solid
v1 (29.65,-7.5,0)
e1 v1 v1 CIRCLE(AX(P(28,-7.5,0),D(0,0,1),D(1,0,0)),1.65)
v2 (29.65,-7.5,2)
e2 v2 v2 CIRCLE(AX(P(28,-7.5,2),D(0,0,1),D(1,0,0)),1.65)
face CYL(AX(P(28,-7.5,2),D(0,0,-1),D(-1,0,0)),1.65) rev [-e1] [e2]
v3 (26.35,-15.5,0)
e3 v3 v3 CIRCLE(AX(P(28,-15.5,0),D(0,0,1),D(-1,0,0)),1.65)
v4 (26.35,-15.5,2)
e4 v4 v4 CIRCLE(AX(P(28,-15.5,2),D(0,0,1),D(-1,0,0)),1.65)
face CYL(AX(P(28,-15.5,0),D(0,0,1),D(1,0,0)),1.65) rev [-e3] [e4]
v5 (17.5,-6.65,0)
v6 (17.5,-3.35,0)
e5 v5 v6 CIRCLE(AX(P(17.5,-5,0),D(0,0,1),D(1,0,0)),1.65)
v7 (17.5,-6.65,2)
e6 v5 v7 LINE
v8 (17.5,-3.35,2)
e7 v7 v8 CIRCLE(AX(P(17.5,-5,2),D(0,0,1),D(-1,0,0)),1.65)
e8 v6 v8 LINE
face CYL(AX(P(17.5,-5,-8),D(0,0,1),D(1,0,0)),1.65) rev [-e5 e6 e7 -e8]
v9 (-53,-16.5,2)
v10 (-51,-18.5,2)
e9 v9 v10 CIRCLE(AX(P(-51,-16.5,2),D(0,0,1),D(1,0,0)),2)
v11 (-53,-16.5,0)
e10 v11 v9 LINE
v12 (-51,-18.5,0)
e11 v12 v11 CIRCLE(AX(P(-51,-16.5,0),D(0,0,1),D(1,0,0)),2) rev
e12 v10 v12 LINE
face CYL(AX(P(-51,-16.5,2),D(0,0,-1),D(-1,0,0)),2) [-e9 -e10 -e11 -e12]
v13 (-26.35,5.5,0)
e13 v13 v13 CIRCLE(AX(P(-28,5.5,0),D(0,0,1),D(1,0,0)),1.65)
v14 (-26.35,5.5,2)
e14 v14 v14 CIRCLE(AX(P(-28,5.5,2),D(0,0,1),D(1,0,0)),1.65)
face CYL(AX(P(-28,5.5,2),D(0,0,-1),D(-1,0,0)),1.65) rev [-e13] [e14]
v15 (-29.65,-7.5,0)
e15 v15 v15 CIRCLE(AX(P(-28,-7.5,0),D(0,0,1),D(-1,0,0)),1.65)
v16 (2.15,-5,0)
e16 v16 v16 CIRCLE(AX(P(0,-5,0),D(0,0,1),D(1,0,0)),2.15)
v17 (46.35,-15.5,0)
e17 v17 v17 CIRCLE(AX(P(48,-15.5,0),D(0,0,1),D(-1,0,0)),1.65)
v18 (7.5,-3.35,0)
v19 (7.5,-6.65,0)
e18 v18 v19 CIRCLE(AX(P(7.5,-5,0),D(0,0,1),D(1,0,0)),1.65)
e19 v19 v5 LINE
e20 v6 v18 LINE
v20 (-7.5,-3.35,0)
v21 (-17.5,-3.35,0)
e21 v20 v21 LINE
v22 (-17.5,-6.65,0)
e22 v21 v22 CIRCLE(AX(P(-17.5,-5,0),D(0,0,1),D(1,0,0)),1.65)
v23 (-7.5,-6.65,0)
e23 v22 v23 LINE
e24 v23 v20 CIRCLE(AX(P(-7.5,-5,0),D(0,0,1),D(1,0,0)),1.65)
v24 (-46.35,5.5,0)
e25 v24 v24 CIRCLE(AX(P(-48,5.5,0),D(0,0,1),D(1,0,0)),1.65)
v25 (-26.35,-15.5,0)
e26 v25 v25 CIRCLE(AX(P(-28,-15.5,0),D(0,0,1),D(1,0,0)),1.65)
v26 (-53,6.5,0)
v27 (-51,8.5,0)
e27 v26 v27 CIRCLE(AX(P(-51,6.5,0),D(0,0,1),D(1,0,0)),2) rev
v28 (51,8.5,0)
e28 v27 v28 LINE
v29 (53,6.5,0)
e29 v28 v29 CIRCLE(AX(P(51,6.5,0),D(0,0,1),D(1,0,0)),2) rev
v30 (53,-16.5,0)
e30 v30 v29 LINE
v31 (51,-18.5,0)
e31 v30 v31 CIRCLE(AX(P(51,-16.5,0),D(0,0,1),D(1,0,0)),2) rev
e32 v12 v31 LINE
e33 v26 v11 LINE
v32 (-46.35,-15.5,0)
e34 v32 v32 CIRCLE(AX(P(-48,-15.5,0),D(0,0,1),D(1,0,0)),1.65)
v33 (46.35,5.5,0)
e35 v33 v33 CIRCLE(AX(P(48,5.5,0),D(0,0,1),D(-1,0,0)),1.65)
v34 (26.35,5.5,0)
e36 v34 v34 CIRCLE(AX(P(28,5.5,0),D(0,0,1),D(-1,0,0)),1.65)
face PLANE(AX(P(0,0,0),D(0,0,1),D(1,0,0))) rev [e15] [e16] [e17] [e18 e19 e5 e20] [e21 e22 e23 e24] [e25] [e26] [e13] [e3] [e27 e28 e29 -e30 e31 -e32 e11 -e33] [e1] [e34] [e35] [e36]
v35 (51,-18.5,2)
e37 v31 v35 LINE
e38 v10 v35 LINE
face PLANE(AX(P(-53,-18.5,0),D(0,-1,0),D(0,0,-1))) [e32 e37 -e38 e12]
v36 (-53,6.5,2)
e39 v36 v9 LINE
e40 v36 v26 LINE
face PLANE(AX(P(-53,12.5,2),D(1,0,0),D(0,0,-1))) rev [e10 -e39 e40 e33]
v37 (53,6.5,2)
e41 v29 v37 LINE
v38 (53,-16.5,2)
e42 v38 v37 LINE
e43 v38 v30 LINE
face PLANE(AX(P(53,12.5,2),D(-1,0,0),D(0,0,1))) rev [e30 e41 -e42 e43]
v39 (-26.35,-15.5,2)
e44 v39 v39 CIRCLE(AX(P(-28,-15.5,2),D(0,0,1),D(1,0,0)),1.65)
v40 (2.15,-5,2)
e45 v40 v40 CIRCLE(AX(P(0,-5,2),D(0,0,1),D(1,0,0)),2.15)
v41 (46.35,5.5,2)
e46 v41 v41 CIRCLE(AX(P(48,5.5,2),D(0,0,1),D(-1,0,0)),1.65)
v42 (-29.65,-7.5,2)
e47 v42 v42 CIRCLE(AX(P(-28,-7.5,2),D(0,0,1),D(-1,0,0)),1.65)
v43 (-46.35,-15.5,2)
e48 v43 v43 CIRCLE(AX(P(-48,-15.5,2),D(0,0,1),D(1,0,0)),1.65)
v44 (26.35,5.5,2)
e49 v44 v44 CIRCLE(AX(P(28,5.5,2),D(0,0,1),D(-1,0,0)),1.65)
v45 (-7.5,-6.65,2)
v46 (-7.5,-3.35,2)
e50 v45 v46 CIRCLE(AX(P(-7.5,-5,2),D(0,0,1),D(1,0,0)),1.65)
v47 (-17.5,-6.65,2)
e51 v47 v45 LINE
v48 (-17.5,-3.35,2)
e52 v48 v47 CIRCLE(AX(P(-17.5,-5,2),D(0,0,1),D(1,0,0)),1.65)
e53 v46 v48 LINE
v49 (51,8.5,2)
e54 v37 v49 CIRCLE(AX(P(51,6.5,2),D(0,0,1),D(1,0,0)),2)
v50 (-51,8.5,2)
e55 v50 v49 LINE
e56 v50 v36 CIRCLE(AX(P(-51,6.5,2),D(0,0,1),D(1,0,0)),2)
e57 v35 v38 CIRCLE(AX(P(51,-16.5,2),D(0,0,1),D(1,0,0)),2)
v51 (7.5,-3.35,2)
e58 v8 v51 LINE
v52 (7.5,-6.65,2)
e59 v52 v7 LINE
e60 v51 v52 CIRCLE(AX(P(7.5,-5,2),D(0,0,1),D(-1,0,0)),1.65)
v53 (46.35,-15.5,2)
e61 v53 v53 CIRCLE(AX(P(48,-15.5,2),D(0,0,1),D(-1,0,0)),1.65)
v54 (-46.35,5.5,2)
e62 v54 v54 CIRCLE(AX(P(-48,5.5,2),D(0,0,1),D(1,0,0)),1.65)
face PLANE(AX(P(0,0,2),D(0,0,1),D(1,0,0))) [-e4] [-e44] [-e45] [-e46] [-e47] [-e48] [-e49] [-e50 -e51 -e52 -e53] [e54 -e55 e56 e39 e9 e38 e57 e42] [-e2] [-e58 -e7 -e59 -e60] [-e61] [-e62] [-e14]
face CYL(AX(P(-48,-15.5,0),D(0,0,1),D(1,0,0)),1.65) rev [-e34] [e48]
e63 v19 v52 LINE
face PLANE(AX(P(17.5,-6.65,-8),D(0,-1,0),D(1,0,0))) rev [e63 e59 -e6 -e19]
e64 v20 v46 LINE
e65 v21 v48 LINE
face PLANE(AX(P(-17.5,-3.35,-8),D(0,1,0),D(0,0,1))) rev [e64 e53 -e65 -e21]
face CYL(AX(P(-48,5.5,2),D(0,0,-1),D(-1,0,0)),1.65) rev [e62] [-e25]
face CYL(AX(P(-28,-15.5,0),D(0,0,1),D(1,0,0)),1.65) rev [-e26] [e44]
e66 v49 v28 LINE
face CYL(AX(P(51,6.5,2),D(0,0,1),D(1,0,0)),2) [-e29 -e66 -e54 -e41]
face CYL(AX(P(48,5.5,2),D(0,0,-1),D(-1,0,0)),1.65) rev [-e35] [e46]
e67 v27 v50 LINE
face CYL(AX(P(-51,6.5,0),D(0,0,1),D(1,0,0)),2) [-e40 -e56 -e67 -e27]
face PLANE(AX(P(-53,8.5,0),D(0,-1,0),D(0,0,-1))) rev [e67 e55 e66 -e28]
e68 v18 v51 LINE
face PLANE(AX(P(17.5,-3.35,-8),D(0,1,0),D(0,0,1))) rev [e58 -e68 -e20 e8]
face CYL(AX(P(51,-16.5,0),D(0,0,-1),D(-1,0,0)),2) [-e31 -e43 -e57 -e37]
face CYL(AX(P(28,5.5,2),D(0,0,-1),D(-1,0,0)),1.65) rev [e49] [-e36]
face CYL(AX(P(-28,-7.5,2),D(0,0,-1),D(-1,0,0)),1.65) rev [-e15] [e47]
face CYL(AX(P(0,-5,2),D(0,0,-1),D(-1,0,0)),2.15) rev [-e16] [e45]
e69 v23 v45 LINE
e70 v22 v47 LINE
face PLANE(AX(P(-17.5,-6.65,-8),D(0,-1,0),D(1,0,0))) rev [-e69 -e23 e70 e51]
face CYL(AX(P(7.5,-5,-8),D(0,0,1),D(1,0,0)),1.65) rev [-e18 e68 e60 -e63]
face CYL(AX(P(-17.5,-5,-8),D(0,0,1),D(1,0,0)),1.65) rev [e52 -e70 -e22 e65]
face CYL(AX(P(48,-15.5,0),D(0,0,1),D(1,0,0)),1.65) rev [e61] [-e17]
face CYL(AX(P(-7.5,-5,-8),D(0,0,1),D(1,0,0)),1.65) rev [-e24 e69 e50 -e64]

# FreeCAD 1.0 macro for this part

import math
import FreeCAD as App
import Part
import Sketcher


def edges_at(feature, points):
    """Names of the edges that pass closest to the given points."""
    edges = feature.Shape.Edges
    near = lambda p: min(range(len(edges)), key=lambda i: edges[i].distToShape(Part.Vertex(*p))[0])
    return sorted({f"Edge{near(p) + 1}" for p in points})


def add_polygon(sketch, points):
    """Adds a closed chain of lines whose ends are joined by coincident constraints."""
    first, n = sketch.GeometryCount, len(points)
    for a, b in zip(points, points[1:] + points[:1]):
        sketch.addGeometry(Part.LineSegment(App.Vector(*a, 0), App.Vector(*b, 0)), False)
    for i in range(n):
        sketch.addConstraint(Sketcher.Constraint("Coincident", first + i, 2, first + (i + 1) % n, 1))

doc = App.newDocument("Part")
body = doc.addObject("PartDesign::Body", "Body")

# Sketch on XY plane
sketch1 = doc.addObject("Sketcher::SketchObject", "Sketch")
body.addObject(sketch1)
sketch1.AttachmentSupport = (doc.XY_Plane, [""])
sketch1.MapMode = "FlatFace"
add_polygon(sketch1, [(-53, 12.5), (-53, -12.5), (53, -12.5), (53, 12.5)])  # lines 0-3
sketch1.addGeometry(Part.Circle(App.Vector(-28, -7.5, 0), App.Vector(0, 0, 1), 1.6), False)  # 4
sketch1.addGeometry(Part.Circle(App.Vector(28, -7.5, 0), App.Vector(0, 0, 1), 1.6), False)  # 5
sketch1.addGeometry(Part.Circle(App.Vector(0, -5, 0), App.Vector(0, 0, 1), 2.1), False)  # 6
sketch1.addGeometry(Part.Circle(App.Vector(-48, 5.5, 0), App.Vector(0, 0, 1), 1.6), False)  # 7
sketch1.addGeometry(Part.Circle(App.Vector(-28, 5.5, 0), App.Vector(0, 0, 1), 1.6), False)  # 8
sketch1.addGeometry(Part.Circle(App.Vector(28, 5.5, 0), App.Vector(0, 0, 1), 1.6), False)  # 9
sketch1.addGeometry(Part.Circle(App.Vector(48, 5.5, 0), App.Vector(0, 0, 1), 1.6), False)  # 10
sketch1.addConstraint(Sketcher.Constraint("Vertical", 0))
sketch1.addConstraint(Sketcher.Constraint("Horizontal", 1))
sketch1.addConstraint(Sketcher.Constraint("Vertical", 2))
sketch1.addConstraint(Sketcher.Constraint("Horizontal", 3))
sketch1.addConstraint(Sketcher.Constraint("Equal", 4, 5))
sketch1.addConstraint(Sketcher.Constraint("Equal", 5, 7))
sketch1.addConstraint(Sketcher.Constraint("Equal", 7, 8))
sketch1.addConstraint(Sketcher.Constraint("Equal", 8, 9))
sketch1.addConstraint(Sketcher.Constraint("Equal", 9, 10))
sketch1.addConstraint(Sketcher.Constraint("Symmetric", 0, 2, 2, 2, -1, 1))
sketch1.addConstraint(Sketcher.Constraint("Symmetric", 4, 3, 5, 3, -2))
sketch1.addConstraint(Sketcher.Constraint("Symmetric", 8, 3, 9, 3, -2))
sketch1.addConstraint(Sketcher.Constraint("Symmetric", 7, 3, 10, 3, -2))
sketch1.addConstraint(Sketcher.Constraint("PointOnObject", 6, 3, -2))
sketch1.addConstraint(Sketcher.Constraint("Horizontal", 7, 3, 8, 3))
sketch1.addConstraint(Sketcher.Constraint("Vertical", 4, 3, 8, 3))
sketch1.addConstraint(Sketcher.Constraint("Diameter", 4, 3.3))
sketch1.addConstraint(Sketcher.Constraint("Diameter", 6, 4.3))
sketch1.addConstraint(Sketcher.Constraint("DistanceX", 1, 1, 1, 2, 106.0))
sketch1.addConstraint(Sketcher.Constraint("DistanceY", 0, 2, 0, 1, 25.0))
sketch1.addConstraint(Sketcher.Constraint("DistanceX", 4, 3, -1, 1, 28.0))
sketch1.addConstraint(Sketcher.Constraint("DistanceY", 6, 3, -1, 1, 5.0))
sketch1.addConstraint(Sketcher.Constraint("DistanceX", 7, 3, -1, 1, 48.0))
sketch1.addConstraint(Sketcher.Constraint("DistanceY", 4, 3, 7, 3, 13.0))
sketch1.addConstraint(Sketcher.Constraint("DistanceY", 0, 2, 7, 3, 18.0))
pad1 = doc.addObject("PartDesign::Pad", "Pad")
body.addObject(pad1)
pad1.Profile = sketch1
pad1.Length = 2

# Sketch on XY plane
sketch2 = doc.addObject("Sketcher::SketchObject", "Sketch001")
body.addObject(sketch2)
sketch2.AttachmentSupport = (doc.XY_Plane, [""])
sketch2.MapMode = "FlatFace"
sketch2.AttachmentOffset = App.Placement(App.Vector(0, 0, 2), App.Rotation())
add_polygon(sketch2, [(-53, -12), (-53, -18), (53, -18), (53, -12)])  # lines 0-3
sketch2.addConstraint(Sketcher.Constraint("Vertical", 0))
sketch2.addConstraint(Sketcher.Constraint("Horizontal", 1))
sketch2.addConstraint(Sketcher.Constraint("Vertical", 2))
sketch2.addConstraint(Sketcher.Constraint("Horizontal", 3))
sketch2.addConstraint(Sketcher.Constraint("DistanceX", 1, 1, 1, 2, 106.0))
sketch2.addConstraint(Sketcher.Constraint("DistanceY", 0, 2, 0, 1, 6.0))
sketch2.addConstraint(Sketcher.Constraint("DistanceX", 0, 2, -1, 1, 53.0))
sketch2.addConstraint(Sketcher.Constraint("DistanceY", 0, 2, -1, 1, 18.5))
pad2 = doc.addObject("PartDesign::Pad", "Pad001")
body.addObject(pad2)
pad2.Profile = sketch2
pad2.Length = 2
pad2.Reversed = True

# Sketch on XY plane
sketch3 = doc.addObject("Sketcher::SketchObject", "Sketch002")
body.addObject(sketch3)
sketch3.AttachmentSupport = (doc.XY_Plane, [""])
sketch3.MapMode = "FlatFace"
sketch3.AttachmentOffset = App.Placement(App.Vector(0, 0, 2), App.Rotation())
sketch3.addGeometry(Part.Circle(App.Vector(-48, -15.5, 0), App.Vector(0, 0, 1), 1.6), False)
sketch3.addGeometry(Part.Circle(App.Vector(48, -15.5, 0), App.Vector(0, 0, 1), 1.6), False)
sketch3.addGeometry(Part.Circle(App.Vector(-28, -15.5, 0), App.Vector(0, 0, 1), 1.6), False)
sketch3.addGeometry(Part.Circle(App.Vector(28, -15.5, 0), App.Vector(0, 0, 1), 1.6), False)
sketch3.addConstraint(Sketcher.Constraint("Equal", 0, 1))
sketch3.addConstraint(Sketcher.Constraint("Equal", 1, 2))
sketch3.addConstraint(Sketcher.Constraint("Equal", 2, 3))
sketch3.addConstraint(Sketcher.Constraint("Symmetric", 0, 3, 1, 3, -2))
sketch3.addConstraint(Sketcher.Constraint("Symmetric", 2, 3, 3, 3, -2))
sketch3.addConstraint(Sketcher.Constraint("Horizontal", 1, 3, 2, 3))
sketch3.addConstraint(Sketcher.Constraint("Diameter", 0, 3.3))
sketch3.addConstraint(Sketcher.Constraint("DistanceX", 0, 3, -1, 1, 48.0))
sketch3.addConstraint(Sketcher.Constraint("DistanceX", 2, 3, -1, 1, 28.0))
sketch3.addConstraint(Sketcher.Constraint("DistanceY", 0, 3, -1, 1, 15.5))
pocket1 = doc.addObject("PartDesign::Pocket", "Pocket")
body.addObject(pocket1)
pocket1.Profile = sketch3
pocket1.Type = "ThroughAll"

# Sketch on XY plane
sketch4 = doc.addObject("Sketcher::SketchObject", "Sketch003")
body.addObject(sketch4)
sketch4.AttachmentSupport = (doc.XY_Plane, [""])
sketch4.MapMode = "FlatFace"
sketch4.AttachmentOffset = App.Placement(App.Vector(0, 0, 2), App.Rotation())
sketch4.addGeometry(Part.LineSegment(App.Vector(-7.5, -3.4, 0), App.Vector(-17.5, -3.4, 0)), False)
sketch4.addGeometry(Part.ArcOfCircle(Part.Circle(App.Vector(-17.5, -5, 0), App.Vector(0, 0, 1), 1.6), math.radians(90), math.radians(270)), False)
sketch4.addGeometry(Part.LineSegment(App.Vector(-17.5, -6.7, 0), App.Vector(-7.5, -6.7, 0)), False)
sketch4.addGeometry(Part.ArcOfCircle(Part.Circle(App.Vector(-7.5, -5, 0), App.Vector(0, 0, 1), 1.6), math.radians(-90), math.radians(90)), False)
sketch4.addGeometry(Part.LineSegment(App.Vector(17.5, -3.4, 0), App.Vector(7.5, -3.4, 0)), False)
sketch4.addGeometry(Part.ArcOfCircle(Part.Circle(App.Vector(7.5, -5, 0), App.Vector(0, 0, 1), 1.6), math.radians(90), math.radians(270)), False)
sketch4.addGeometry(Part.LineSegment(App.Vector(7.5, -6.7, 0), App.Vector(17.5, -6.7, 0)), False)
sketch4.addGeometry(Part.ArcOfCircle(Part.Circle(App.Vector(17.5, -5, 0), App.Vector(0, 0, 1), 1.6), math.radians(-90), math.radians(90)), False)
sketch4.addConstraint(Sketcher.Constraint("Tangent", 0, 2, 1, 1))
sketch4.addConstraint(Sketcher.Constraint("Tangent", 1, 2, 2, 1))
sketch4.addConstraint(Sketcher.Constraint("Tangent", 2, 2, 3, 1))
sketch4.addConstraint(Sketcher.Constraint("Tangent", 3, 2, 0, 1))
sketch4.addConstraint(Sketcher.Constraint("Tangent", 4, 2, 5, 1))
sketch4.addConstraint(Sketcher.Constraint("Tangent", 5, 2, 6, 1))
sketch4.addConstraint(Sketcher.Constraint("Tangent", 6, 2, 7, 1))
sketch4.addConstraint(Sketcher.Constraint("Tangent", 7, 2, 4, 1))
sketch4.addConstraint(Sketcher.Constraint("Horizontal", 0))
sketch4.addConstraint(Sketcher.Constraint("Horizontal", 2))
sketch4.addConstraint(Sketcher.Constraint("Horizontal", 4))
sketch4.addConstraint(Sketcher.Constraint("Horizontal", 6))
sketch4.addConstraint(Sketcher.Constraint("Equal", 3, 5))
sketch4.addConstraint(Sketcher.Constraint("Symmetric", 3, 3, 5, 3, -2))
sketch4.addConstraint(Sketcher.Constraint("Equal", 2, 4))
sketch4.addConstraint(Sketcher.Constraint("DistanceX", 0, 2, 0, 1, 10.0))
sketch4.addConstraint(Sketcher.Constraint("Radius", 1, 1.65))
sketch4.addConstraint(Sketcher.Constraint("DistanceY", 1, 3, -1, 1, 5.0))
sketch4.addConstraint(Sketcher.Constraint("DistanceX", 3, 3, 5, 3, 15.0))
pocket2 = doc.addObject("PartDesign::Pocket", "Pocket001")
body.addObject(pocket2)
pocket2.Profile = sketch4
pocket2.Length = 10

# Sketch on XY plane
sketch5 = doc.addObject("Sketcher::SketchObject", "Sketch004")
body.addObject(sketch5)
sketch5.AttachmentSupport = (doc.XY_Plane, [""])
sketch5.MapMode = "FlatFace"
sketch5.AttachmentOffset = App.Placement(App.Vector(0, 0, 2), App.Rotation())
add_polygon(sketch5, [(-53, 12.5), (-53, 8.5), (53, 8.5), (53, 12.5)])  # lines 0-3
sketch5.addConstraint(Sketcher.Constraint("Vertical", 0))
sketch5.addConstraint(Sketcher.Constraint("Horizontal", 1))
sketch5.addConstraint(Sketcher.Constraint("Vertical", 2))
sketch5.addConstraint(Sketcher.Constraint("Horizontal", 3))
sketch5.addConstraint(Sketcher.Constraint("DistanceX", 1, 1, 1, 2, 106.0))
sketch5.addConstraint(Sketcher.Constraint("DistanceY", 0, 2, 0, 1, 4.0))
sketch5.addConstraint(Sketcher.Constraint("DistanceX", 0, 2, -1, 1, 53.0))
sketch5.addConstraint(Sketcher.Constraint("DistanceY", -1, 1, 0, 2, 8.5))
pocket3 = doc.addObject("PartDesign::Pocket", "Pocket002")
body.addObject(pocket3)
pocket3.Profile = sketch5
pocket3.Type = "ThroughAll"
doc.recompute()

fillet = doc.addObject("PartDesign::Fillet", "Fillet")
body.addObject(fillet)
fillet.Base = (pocket3, edges_at(pocket3, [
    (-53, 8.5, 1),
    (53, 8.5, 1),
    (-53, -18.5, 1),
    (53, -18.5, 1),
]))
fillet.Radius = 2

doc.recompute()
